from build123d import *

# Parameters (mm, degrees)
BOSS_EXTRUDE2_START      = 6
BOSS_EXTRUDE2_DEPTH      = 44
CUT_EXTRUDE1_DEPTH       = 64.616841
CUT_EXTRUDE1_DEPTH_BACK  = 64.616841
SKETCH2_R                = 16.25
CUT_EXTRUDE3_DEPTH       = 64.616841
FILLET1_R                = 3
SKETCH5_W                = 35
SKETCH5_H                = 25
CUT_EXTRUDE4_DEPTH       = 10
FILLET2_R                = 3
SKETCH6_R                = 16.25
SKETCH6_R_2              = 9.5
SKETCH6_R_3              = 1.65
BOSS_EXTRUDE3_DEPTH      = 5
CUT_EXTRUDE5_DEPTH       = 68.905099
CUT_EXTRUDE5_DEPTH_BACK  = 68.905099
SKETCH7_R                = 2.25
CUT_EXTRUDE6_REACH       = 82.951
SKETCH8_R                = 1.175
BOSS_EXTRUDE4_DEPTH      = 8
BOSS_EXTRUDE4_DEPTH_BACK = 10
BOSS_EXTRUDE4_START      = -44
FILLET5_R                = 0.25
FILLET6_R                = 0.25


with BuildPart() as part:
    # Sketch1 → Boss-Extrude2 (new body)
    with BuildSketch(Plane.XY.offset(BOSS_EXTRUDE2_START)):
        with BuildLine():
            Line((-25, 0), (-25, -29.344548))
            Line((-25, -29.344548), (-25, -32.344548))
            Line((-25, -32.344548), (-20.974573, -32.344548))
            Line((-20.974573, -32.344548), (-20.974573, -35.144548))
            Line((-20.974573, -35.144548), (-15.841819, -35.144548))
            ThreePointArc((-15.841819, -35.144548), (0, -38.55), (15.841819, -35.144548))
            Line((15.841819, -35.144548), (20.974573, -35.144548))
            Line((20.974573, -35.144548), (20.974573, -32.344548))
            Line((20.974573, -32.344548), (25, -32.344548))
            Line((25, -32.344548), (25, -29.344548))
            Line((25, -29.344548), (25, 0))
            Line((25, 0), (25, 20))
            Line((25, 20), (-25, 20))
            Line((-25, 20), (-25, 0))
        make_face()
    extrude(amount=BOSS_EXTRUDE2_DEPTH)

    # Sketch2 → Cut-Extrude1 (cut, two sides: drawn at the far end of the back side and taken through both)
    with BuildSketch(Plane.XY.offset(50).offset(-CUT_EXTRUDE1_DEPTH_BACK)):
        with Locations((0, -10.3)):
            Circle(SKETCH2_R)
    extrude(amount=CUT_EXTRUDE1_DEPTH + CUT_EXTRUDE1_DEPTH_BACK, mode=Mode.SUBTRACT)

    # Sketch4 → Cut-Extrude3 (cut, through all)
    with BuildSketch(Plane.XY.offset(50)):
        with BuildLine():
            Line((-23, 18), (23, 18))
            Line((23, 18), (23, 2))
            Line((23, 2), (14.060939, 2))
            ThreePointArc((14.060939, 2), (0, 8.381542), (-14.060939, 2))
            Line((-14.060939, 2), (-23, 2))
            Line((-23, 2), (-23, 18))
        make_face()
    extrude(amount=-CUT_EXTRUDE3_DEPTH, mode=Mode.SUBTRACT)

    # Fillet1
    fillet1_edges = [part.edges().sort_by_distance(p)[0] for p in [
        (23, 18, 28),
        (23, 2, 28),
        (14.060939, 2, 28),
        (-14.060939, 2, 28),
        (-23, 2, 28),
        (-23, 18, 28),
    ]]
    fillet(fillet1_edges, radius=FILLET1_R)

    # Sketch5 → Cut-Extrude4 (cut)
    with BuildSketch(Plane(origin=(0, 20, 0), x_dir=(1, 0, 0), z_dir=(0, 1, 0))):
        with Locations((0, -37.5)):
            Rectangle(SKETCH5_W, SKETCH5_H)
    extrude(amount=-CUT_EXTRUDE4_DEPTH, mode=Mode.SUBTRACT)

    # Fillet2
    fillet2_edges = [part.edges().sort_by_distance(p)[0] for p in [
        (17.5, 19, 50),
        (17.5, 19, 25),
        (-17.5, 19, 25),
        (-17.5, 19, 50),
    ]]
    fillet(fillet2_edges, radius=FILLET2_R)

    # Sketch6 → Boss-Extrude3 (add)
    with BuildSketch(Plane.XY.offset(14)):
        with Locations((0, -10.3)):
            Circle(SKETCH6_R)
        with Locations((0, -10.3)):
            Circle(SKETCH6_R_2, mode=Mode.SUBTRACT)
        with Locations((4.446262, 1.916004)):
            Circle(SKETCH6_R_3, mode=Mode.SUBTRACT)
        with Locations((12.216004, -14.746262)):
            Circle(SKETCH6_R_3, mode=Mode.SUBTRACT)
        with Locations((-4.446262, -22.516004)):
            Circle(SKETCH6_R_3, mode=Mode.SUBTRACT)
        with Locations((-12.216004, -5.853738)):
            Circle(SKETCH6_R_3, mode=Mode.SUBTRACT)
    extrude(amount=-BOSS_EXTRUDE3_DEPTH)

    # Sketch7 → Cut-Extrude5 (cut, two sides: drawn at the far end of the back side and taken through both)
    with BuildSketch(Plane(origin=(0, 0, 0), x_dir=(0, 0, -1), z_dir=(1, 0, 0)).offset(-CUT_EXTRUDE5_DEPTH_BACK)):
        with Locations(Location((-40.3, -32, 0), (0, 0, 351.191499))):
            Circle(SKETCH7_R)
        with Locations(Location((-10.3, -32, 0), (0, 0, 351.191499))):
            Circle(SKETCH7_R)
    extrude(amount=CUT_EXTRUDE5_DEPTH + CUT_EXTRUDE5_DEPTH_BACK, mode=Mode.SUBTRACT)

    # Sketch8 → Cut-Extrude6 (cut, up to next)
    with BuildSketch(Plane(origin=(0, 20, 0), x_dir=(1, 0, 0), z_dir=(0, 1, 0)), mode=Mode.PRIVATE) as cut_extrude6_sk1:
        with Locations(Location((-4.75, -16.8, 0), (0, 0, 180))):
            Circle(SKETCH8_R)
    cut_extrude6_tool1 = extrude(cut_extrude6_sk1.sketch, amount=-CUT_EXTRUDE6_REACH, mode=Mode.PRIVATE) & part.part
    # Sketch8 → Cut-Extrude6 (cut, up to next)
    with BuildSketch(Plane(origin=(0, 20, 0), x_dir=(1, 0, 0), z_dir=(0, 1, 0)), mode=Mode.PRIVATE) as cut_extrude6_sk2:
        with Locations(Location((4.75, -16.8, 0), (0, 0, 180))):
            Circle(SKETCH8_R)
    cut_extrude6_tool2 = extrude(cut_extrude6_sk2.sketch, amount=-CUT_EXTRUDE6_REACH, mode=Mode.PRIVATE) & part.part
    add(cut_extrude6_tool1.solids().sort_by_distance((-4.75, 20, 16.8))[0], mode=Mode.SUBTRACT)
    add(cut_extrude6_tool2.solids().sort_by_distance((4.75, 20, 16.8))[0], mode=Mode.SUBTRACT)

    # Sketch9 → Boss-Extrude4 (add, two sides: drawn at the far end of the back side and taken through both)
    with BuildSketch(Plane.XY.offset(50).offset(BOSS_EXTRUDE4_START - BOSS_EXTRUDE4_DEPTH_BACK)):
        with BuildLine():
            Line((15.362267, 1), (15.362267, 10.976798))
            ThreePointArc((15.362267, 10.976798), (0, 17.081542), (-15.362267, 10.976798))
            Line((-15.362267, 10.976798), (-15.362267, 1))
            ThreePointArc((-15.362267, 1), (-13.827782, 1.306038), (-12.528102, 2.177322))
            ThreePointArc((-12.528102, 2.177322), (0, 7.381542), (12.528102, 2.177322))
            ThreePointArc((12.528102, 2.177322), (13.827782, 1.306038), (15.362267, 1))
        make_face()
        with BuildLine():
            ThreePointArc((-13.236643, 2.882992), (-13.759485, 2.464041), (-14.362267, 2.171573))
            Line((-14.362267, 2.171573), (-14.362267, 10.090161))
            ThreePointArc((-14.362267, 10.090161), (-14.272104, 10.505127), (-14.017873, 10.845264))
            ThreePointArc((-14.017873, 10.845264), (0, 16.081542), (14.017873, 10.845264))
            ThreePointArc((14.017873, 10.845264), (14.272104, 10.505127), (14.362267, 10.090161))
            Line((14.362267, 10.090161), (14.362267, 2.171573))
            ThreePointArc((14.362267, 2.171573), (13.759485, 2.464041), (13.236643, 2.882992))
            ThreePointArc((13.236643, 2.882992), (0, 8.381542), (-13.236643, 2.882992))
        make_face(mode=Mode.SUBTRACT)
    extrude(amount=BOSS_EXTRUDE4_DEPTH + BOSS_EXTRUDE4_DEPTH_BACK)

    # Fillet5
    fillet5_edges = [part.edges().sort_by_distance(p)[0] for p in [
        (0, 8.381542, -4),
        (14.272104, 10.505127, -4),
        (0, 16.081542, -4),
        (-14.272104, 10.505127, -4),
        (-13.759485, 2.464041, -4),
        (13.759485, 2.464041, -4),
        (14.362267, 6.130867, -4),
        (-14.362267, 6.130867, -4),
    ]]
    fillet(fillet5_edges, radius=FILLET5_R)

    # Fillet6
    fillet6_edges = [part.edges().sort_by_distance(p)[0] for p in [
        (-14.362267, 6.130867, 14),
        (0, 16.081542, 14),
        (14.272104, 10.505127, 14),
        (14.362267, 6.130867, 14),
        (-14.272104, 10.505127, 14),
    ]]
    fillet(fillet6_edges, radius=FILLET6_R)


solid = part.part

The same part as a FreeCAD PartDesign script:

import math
import FreeCAD as App
import Part
import Sketcher

V = App.Vector
Q = App.Units.Quantity


def edges_at(feature, points):
    """Names of the edges that pass closest to the given points."""
    edges = feature.Shape.Edges
    near = lambda p: min(range(len(edges)), key=lambda i: edges[i].distToShape(Part.Vertex(*p))[0])
    return sorted({f"Edge{near(p) + 1}" for p in points})


def add_polygon(sketch, points):
    """Adds a closed chain of lines whose ends are joined by coincident constraints."""
    first, n = sketch.GeometryCount, len(points)
    for a, b in zip(points, points[1:] + points[:1]):
        sketch.addGeometry(Part.LineSegment(App.Vector(*a, 0), App.Vector(*b, 0)), False)
    for i in range(n):
        sketch.addConstraint(Sketcher.Constraint("Coincident", first + i, 2, first + (i + 1) % n, 1))

doc = App.newDocument("Part")
body = doc.addObject("PartDesign::Body", "Body")

# Sketch on XY plane
sketch1 = body.newObject("Sketcher::SketchObject", "Sketch")
sketch1.AttachmentSupport = (doc.getObject("XY_Plane"), [""])
sketch1.MapMode = "FlatFace"
sketch1.AttachmentOffset = App.Placement(V(0, 0, 6), App.Rotation())
sketch1.addGeometry([
    Part.LineSegment(V(-25, -32.3, 0), V(-21, -32.3, 0)),  # 0
    Part.LineSegment(V(-21, -32.3, 0), V(-21, -35.1, 0)),  # 1
    Part.LineSegment(V(-21, -35.1, 0), V(-15.8, -35.1, 0)),  # 2
    Part.ArcOfCircle(Part.Circle(V(0, 0, 0), V(0, 0, 1), 38.5), math.radians(-114), math.radians(-66)),  # 3
    Part.LineSegment(V(15.8, -35.1, 0), V(21, -35.1, 0)),  # 4
    Part.LineSegment(V(21, -35.1, 0), V(21, -32.3, 0)),  # 5
    Part.LineSegment(V(21, -32.3, 0), V(25, -32.3, 0)),  # 6
    Part.LineSegment(V(25, -32.3, 0), V(25, 20, 0)),  # 7
    Part.LineSegment(V(25, 20, 0), V(-25, 20, 0)),  # 8
    Part.LineSegment(V(-25, 20, 0), V(-25, -32.3, 0)),  # 9
], False)
sketch1.addConstraint([
    Sketcher.Constraint("Coincident", 0, 2, 1, 1),
    Sketcher.Constraint("Coincident", 1, 2, 2, 1),
    Sketcher.Constraint("Coincident", 2, 2, 3, 1),
    Sketcher.Constraint("Coincident", 3, 2, 4, 1),
    Sketcher.Constraint("Coincident", 4, 2, 5, 1),
    Sketcher.Constraint("Coincident", 5, 2, 6, 1),
    Sketcher.Constraint("Coincident", 6, 2, 7, 1),
    Sketcher.Constraint("Coincident", 7, 2, 8, 1),
    Sketcher.Constraint("Coincident", 8, 2, 9, 1),
    Sketcher.Constraint("Coincident", 9, 2, 0, 1),
    Sketcher.Constraint("Horizontal", 0),
    Sketcher.Constraint("Vertical", 1),
    Sketcher.Constraint("Horizontal", 2),
    Sketcher.Constraint("Horizontal", 4),
    Sketcher.Constraint("Vertical", 5),
    Sketcher.Constraint("Horizontal", 6),
    Sketcher.Constraint("Vertical", 7),
    Sketcher.Constraint("Horizontal", 8),
    Sketcher.Constraint("Vertical", 9),
    Sketcher.Constraint("Coincident", 3, 3, -1, 1),
    Sketcher.Constraint("Symmetric", 1, 2, 4, 2, -2),
    Sketcher.Constraint("Symmetric", 6, 2, 9, 2, -2),
    Sketcher.Constraint("DistanceX", 8, 2, 8, 1, Q("50 mm")),
    Sketcher.Constraint("DistanceY", 1, 2, 1, 1, Q("2.8 mm")),
    Sketcher.Constraint("DistanceY", -1, 1, 7, 2, Q("20 mm")),
    Sketcher.Constraint("Radius", 3, Q("38.549998 mm")),
    Sketcher.Constraint("DistanceY", 7, 1, 7, 2, Q("52.344548 mm")),
    Sketcher.Constraint("DistanceX", 0, 1, 0, 2, Q("4.025427 mm")),
])
pad1 = body.newObject("PartDesign::Pad", "Pad")
pad1.Profile = sketch1
pad1.Length = 44

# Sketch on XY plane
sketch2 = body.newObject("Sketcher::SketchObject", "Sketch001")
sketch2.AttachmentSupport = (doc.getObject("XY_Plane"), [""])
sketch2.MapMode = "FlatFace"
sketch2.AttachmentOffset = App.Placement(V(0, 0, 50), App.Rotation())
sketch2.addGeometry(Part.Circle(V(0, -10, 0), V(0, 0, 1), 16), False)
sketch2.addConstraint([
    Sketcher.Constraint("PointOnObject", 0, 3, -2),
    Sketcher.Constraint("Diameter", 0, Q("32.5 mm")),
    Sketcher.Constraint("DistanceY", 0, 3, -1, 1, Q("10.3 mm")),
])
pocket1 = body.newObject("PartDesign::Pocket", "Pocket")
pocket1.Profile = sketch2
pocket1.Type = "ThroughAll"
pocket1.Midplane = True

# Sketch on XY plane
sketch3 = body.newObject("Sketcher::SketchObject", "Sketch002")
sketch3.AttachmentSupport = (doc.getObject("XY_Plane"), [""])
sketch3.MapMode = "FlatFace"
sketch3.AttachmentOffset = App.Placement(V(0, 0, 50), App.Rotation())
sketch3.addGeometry([
    Part.LineSegment(V(23, 18, 0), V(-23, 18, 0)),  # 0
    Part.LineSegment(V(-23, 18, 0), V(-23, 2, 0)),  # 1
    Part.LineSegment(V(-23, 2, 0), V(-14, 2, 0)),  # 2
    Part.ArcOfCircle(Part.Circle(V(0, -10, 0), V(0, 0, 1), 19), math.radians(41), math.radians(139)),  # 3
    Part.LineSegment(V(14, 2, 0), V(23, 2, 0)),  # 4
    Part.LineSegment(V(23, 2, 0), V(23, 18, 0)),  # 5
], False)
sketch3.addConstraint([
    Sketcher.Constraint("Coincident", 0, 2, 1, 1),
    Sketcher.Constraint("Coincident", 1, 2, 2, 1),
    Sketcher.Constraint("Coincident", 2, 2, 3, 2),
    Sketcher.Constraint("Coincident", 3, 1, 4, 1),
    Sketcher.Constraint("Coincident", 4, 2, 5, 1),
    Sketcher.Constraint("Coincident", 5, 2, 0, 1),
    Sketcher.Constraint("Horizontal", 0),
    Sketcher.Constraint("Vertical", 1),
    Sketcher.Constraint("Horizontal", 2),
    Sketcher.Constraint("Horizontal", 4),
    Sketcher.Constraint("Vertical", 5),
    Sketcher.Constraint("Symmetric", 2, 2, 3, 1, -2),
    Sketcher.Constraint("Equal", 2, 4),
    Sketcher.Constraint("DistanceX", 0, 2, 0, 1, Q("46 mm")),
    Sketcher.Constraint("DistanceY", 1, 2, 1, 1, Q("16 mm")),
    Sketcher.Constraint("DistanceY", -1, 1, 0, 2, Q("18 mm")),
    Sketcher.Constraint("DistanceY", 3, 3, -1, 1, Q("10.3 mm")),
    Sketcher.Constraint("Radius", 3, Q("18.681542 mm")),
])
pocket2 = body.newObject("PartDesign::Pocket", "Pocket001")
pocket2.Profile = sketch3
pocket2.Type = "ThroughAll"
doc.recompute()

fillet = body.newObject("PartDesign::Fillet", "Fillet")
fillet.Base = (pocket2, edges_at(pocket2, [
    (23, 18, 28),
    (23, 2, 28),
    (14.061, 2, 28),
    (-14.061, 2, 28),
    (-23, 2, 28),
    (-23, 18, 28),
]))
fillet.Radius = 3

# Sketch on XZ plane
sketch4 = body.newObject("Sketcher::SketchObject", "Sketch003")
sketch4.AttachmentSupport = (doc.getObject("XZ_Plane"), [""])
sketch4.MapMode = "FlatFace"
sketch4.AttachmentOffset = App.Placement(V(0, 0, -20), App.Rotation())
add_polygon(sketch4, [(-18, 25), (-18, 50), (18, 50), (18, 25)])  # lines 0-3
sketch4.addConstraint([
    Sketcher.Constraint("Vertical", 0),
    Sketcher.Constraint("Horizontal", 1),
    Sketcher.Constraint("Vertical", 2),
    Sketcher.Constraint("Horizontal", 3),
    Sketcher.Constraint("DistanceX", 1, 1, 1, 2, Q("35 mm")),
    Sketcher.Constraint("DistanceY", 0, 1, 0, 2, Q("25 mm")),
    Sketcher.Constraint("DistanceY", -1, 1, 0, 2, Q("50 mm")),
    Sketcher.Constraint("DistanceX", 0, 2, -1, 1, Q("17.5 mm")),
])
pocket3 = body.newObject("PartDesign::Pocket", "Pocket002")
pocket3.Profile = sketch4
pocket3.Length = 10
pocket3.Reversed = True
doc.recompute()

fillet2 = body.newObject("PartDesign::Fillet", "Fillet001")
fillet2.Base = (pocket3, edges_at(pocket3, [
    (17.5, 19, 50),
    (17.5, 19, 25),
    (-17.5, 19, 25),
    (-17.5, 19, 50),
]))
fillet2.Radius = 3

# Sketch on XY plane
sketch5 = body.newObject("Sketcher::SketchObject", "Sketch004")
sketch5.AttachmentSupport = (doc.getObject("XY_Plane"), [""])
sketch5.MapMode = "FlatFace"
sketch5.AttachmentOffset = App.Placement(V(0, 0, 14), App.Rotation())
sketch5.addGeometry([
    Part.Circle(V(0, -10.3, 0), V(0, 0, 1), 16.2),  # 0
    Part.Circle(V(-4.4, -22.5, 0), V(0, 0, 1), 1.6),  # 1
    Part.Circle(V(0, -10.3, 0), V(0, 0, 1), 9.5),  # 2
    Part.Circle(V(12.2, -14.7, 0), V(0, 0, 1), 1.6),  # 3
    Part.Circle(V(-12.2, -5.9, 0), V(0, 0, 1), 1.6),  # 4
    Part.Circle(V(4.4, 1.9, 0), V(0, 0, 1), 1.6),  # 5
], False)
sketch5.addConstraint([
    Sketcher.Constraint("Coincident", 2, 3, 0, 3),
    Sketcher.Constraint("Equal", 1, 3),
    Sketcher.Constraint("Equal", 3, 4),
    Sketcher.Constraint("Equal", 4, 5),
    Sketcher.Constraint("PointOnObject", 0, 3, -2),
    Sketcher.Constraint("Diameter", 2, Q("19 mm")),
    Sketcher.Constraint("Diameter", 0, Q("32.5 mm")),
    Sketcher.Constraint("Diameter", 1, Q("3.3 mm")),
    Sketcher.Constraint("DistanceY", 0, 3, -1, 1, Q("10.3 mm")),
    Sketcher.Constraint("DistanceY", 3, 3, 0, 3, Q("4.446262 mm")),
    Sketcher.Constraint("DistanceY", 1, 3, 3, 3, Q("7.769742 mm")),
    Sketcher.Constraint("DistanceX", 4, 3, 3, 3, Q("24.432008 mm")),
    Sketcher.Constraint("DistanceY", 1, 3, 5, 3, Q("24.432008 mm")),
    Sketcher.Constraint("DistanceX", 1, 3, -1, 1, Q("4.446262 mm")),
    Sketcher.Constraint("DistanceX", -1, 1, 3, 3, Q("12.216004 mm")),
    Sketcher.Constraint("DistanceY", 4, 3, -1, 1, Q("5.853738 mm")),
    Sketcher.Constraint("DistanceX", -1, 1, 5, 3, Q("4.446262 mm")),
])
pad2 = body.newObject("PartDesign::Pad", "Pad001")
pad2.Profile = sketch5
pad2.Length = 5
pad2.Reversed = True

# Sketch on YZ plane
sketch6 = body.newObject("Sketcher::SketchObject", "Sketch005")
sketch6.AttachmentSupport = (doc.getObject("YZ_Plane"), [""])
sketch6.MapMode = "FlatFace"
sketch6.addGeometry([
    Part.Circle(V(-32, 40.3, 0), V(0, 0, 1), 2.2),
    Part.Circle(V(-32, 10.3, 0), V(0, 0, 1), 2.2),
], False)
sketch6.addConstraint([
    Sketcher.Constraint("Equal", 0, 1),
    Sketcher.Constraint("Vertical", 0, 3, 1, 3),
    Sketcher.Constraint("Diameter", 0, Q("4.5 mm")),
    Sketcher.Constraint("DistanceX", 0, 3, -1, 1, Q("32 mm")),
    Sketcher.Constraint("DistanceY", 1, 3, 0, 3, Q("30 mm")),
    Sketcher.Constraint("DistanceY", -1, 1, 0, 3, Q("40.3 mm")),
])
pocket4 = body.newObject("PartDesign::Pocket", "Pocket003")
pocket4.Profile = sketch6
pocket4.Type = "ThroughAll"
pocket4.Midplane = True

# Sketch on XZ plane
sketch7 = body.newObject("Sketcher::SketchObject", "Sketch006")
sketch7.AttachmentSupport = (doc.getObject("XZ_Plane"), [""])
sketch7.MapMode = "FlatFace"
sketch7.AttachmentOffset = App.Placement(V(0, 0, -20), App.Rotation())
sketch7.addGeometry(Part.Circle(V(-4.8, 16.8, 0), V(0, 0, 1), 1.2), False)
sketch7.addConstraint([
    Sketcher.Constraint("Diameter", 0, Q("2.35 mm")),
    Sketcher.Constraint("DistanceY", -1, 1, 0, 3, Q("16.8 mm")),
    Sketcher.Constraint("DistanceX", 0, 3, -1, 1, Q("4.75 mm")),
])
pocket5 = body.newObject("PartDesign::Pocket", "Pocket004")
pocket5.Profile = sketch7
pocket5.Type = "UpToFirst"
pocket5.Reversed = True

# Sketch on XZ plane
sketch8 = body.newObject("Sketcher::SketchObject", "Sketch007")
sketch8.AttachmentSupport = (doc.getObject("XZ_Plane"), [""])
sketch8.MapMode = "FlatFace"
sketch8.AttachmentOffset = App.Placement(V(0, 0, -20), App.Rotation())
sketch8.addGeometry(Part.Circle(V(4.8, 16.8, 0), V(0, 0, 1), 1.2), False)
sketch8.addConstraint([
    Sketcher.Constraint("Diameter", 0, Q("2.35 mm")),
    Sketcher.Constraint("DistanceY", -1, 1, 0, 3, Q("16.8 mm")),
    Sketcher.Constraint("DistanceX", -1, 1, 0, 3, Q("4.75 mm")),
])
pocket6 = body.newObject("PartDesign::Pocket", "Pocket005")
pocket6.Profile = sketch8
pocket6.Type = "UpToFirst"
pocket6.Reversed = True

# Sketch on XY plane
sketch9 = body.newObject("Sketcher::SketchObject", "Sketch008")
sketch9.AttachmentSupport = (doc.getObject("XY_Plane"), [""])
sketch9.MapMode = "FlatFace"
sketch9.AttachmentOffset = App.Placement(V(0, 0, 6), App.Rotation())
sketch9.addGeometry([
    Part.LineSegment(V(15.4, 1, 0), V(15.4, 11, 0)),  # 0
    Part.ArcOfCircle(Part.Circle(V(0, -5.3, 0), V(0, 0, 1), 22.4), math.radians(47), math.radians(133)),  # 1
    Part.LineSegment(V(-15.4, 11, 0), V(-15.4, 1, 0)),  # 2
    Part.ArcOfCircle(Part.Circle(V(-15.4, 5, 0), V(0, 0, 1), 4), math.radians(-90), math.radians(-45)),  # 3
    Part.ArcOfCircle(Part.Circle(V(0, -10.3, 0), V(0, 0, 1), 17.7), math.radians(45), math.radians(135)),  # 4
    Part.ArcOfCircle(Part.Circle(V(15.4, 5, 0), V(0, 0, 1), 4), math.radians(-135), math.radians(-90)),  # 5
    Part.ArcOfCircle(Part.Circle(V(0, -10.3, 0), V(0, 0, 1), 18.7), math.radians(45), math.radians(135)),  # 6
    Part.ArcOfCircle(Part.Circle(V(-15.4, 5, 0), V(0, 0, 1), 3), math.radians(-71), math.radians(-45)),  # 7
    Part.LineSegment(V(-14.4, 2.2, 0), V(-14.4, 10.1, 0)),  # 8
    Part.ArcOfCircle(Part.Circle(V(-13.4, 10.1, 0), V(0, 0, 1), 1), math.radians(131), math.radians(180)),  # 9
    Part.ArcOfCircle(Part.Circle(V(0, -5.3, 0), V(0, 0, 1), 21.4), math.radians(49), math.radians(131)),  # 10
    Part.ArcOfCircle(Part.Circle(V(13.4, 10.1, 0), V(0, 0, 1), 1), math.radians(0), math.radians(49)),  # 11
    Part.LineSegment(V(14.4, 10.1, 0), V(14.4, 2.2, 0)),  # 12
    Part.ArcOfCircle(Part.Circle(V(15.4, 5, 0), V(0, 0, 1), 3), math.radians(-135), math.radians(-109)),  # 13
], False)
sketch9.addConstraint([
    Sketcher.Constraint("Coincident", 0, 2, 1, 1),
    Sketcher.Constraint("Coincident", 1, 2, 2, 1),
    Sketcher.Constraint("Coincident", 2, 2, 3, 1),
    Sketcher.Constraint("Tangent", 3, 2, 4, 2),
    Sketcher.Constraint("Tangent", 4, 1, 5, 1),
    Sketcher.Constraint("Coincident", 5, 2, 0, 1),
    Sketcher.Constraint("Tangent", 6, 2, 7, 2),
    Sketcher.Constraint("Coincident", 7, 1, 8, 1),
    Sketcher.Constraint("Tangent", 8, 2, 9, 2),
    Sketcher.Constraint("Tangent", 9, 1, 10, 2),
    Sketcher.Constraint("Tangent", 10, 1, 11, 2),
    Sketcher.Constraint("Tangent", 11, 1, 12, 1),
    Sketcher.Constraint("Coincident", 12, 2, 13, 2),
    Sketcher.Constraint("Tangent", 13, 1, 6, 1),
    Sketcher.Constraint("Vertical", 0),
    Sketcher.Constraint("Vertical", 2),
    Sketcher.Constraint("Vertical", 8),
    Sketcher.Constraint("Vertical", 12),
    Sketcher.Constraint("Coincident", 6, 3, 4, 3),
    Sketcher.Constraint("Coincident", 7, 3, 3, 3),
    Sketcher.Constraint("Coincident", 10, 3, 1, 3),
    Sketcher.Constraint("Coincident", 13, 3, 5, 3),
    Sketcher.Constraint("Equal", 3, 5),
    Sketcher.Constraint("Equal", 9, 11),
    Sketcher.Constraint("Symmetric", 3, 3, 5, 3, -2),
    Sketcher.Constraint("Symmetric", 9, 3, 11, 3, -2),
    Sketcher.Constraint("Horizontal", 0, 2, 1, 2),
    Sketcher.Constraint("Vertical", 5, 3, 0, 2),
    Sketcher.Constraint("Radius", 9, Q("0.999999 mm")),
    Sketcher.Constraint("DistanceY", -1, 1, 2, 2, Q("1 mm")),
    Sketcher.Constraint("DistanceY", 4, 3, 1, 3, Q("5 mm")),
    Sketcher.Constraint("DistanceX", 3, 3, 9, 3, Q("1.999999 mm")),
    Sketcher.Constraint("DistanceY", 1, 3, -1, 1, Q("5.299998 mm")),
    Sketcher.Constraint("DistanceY", 1, 3, 3, 3, Q("10.300001 mm")),
    Sketcher.Constraint("Radius", 1, Q("22.38154 mm")),
    Sketcher.Constraint("Radius", 4, Q("17.68154 mm")),
    Sketcher.Constraint("Radius", 6, Q("18.681541 mm")),
    Sketcher.Constraint("Radius", 10, Q("21.38154 mm")),
])
pad3 = body.newObject("PartDesign::Pad", "Pad002")
pad3.Profile = sketch9
pad3.Type = "TwoLengths"
pad3.Length = 8
pad3.Length2 = 10
doc.recompute()

fillet3 = body.newObject("PartDesign::Fillet", "Fillet002")
fillet3.Base = (pad3, edges_at(pad3, [
    (0, 8.382, -4),
    (14.272, 10.505, -4),
    (0, 16.082, -4),
    (-14.272, 10.505, -4),
    (-13.759, 2.464, -4),
    (13.759, 2.464, -4),
    (14.362, 6.131, -4),
    (-14.362, 6.131, -4),
]))
fillet3.Radius = 0.25
doc.recompute()

fillet4 = body.newObject("PartDesign::Fillet", "Fillet003")
fillet4.Base = (fillet3, edges_at(fillet3, [
    (-14.362, 6.131, 14),
    (0, 16.082, 14),
    (14.272, 10.505, 14),
    (14.362, 6.131, 14),
    (-14.272, 10.505, 14),
]))
fillet4.Radius = 0.25

doc.recompute()
